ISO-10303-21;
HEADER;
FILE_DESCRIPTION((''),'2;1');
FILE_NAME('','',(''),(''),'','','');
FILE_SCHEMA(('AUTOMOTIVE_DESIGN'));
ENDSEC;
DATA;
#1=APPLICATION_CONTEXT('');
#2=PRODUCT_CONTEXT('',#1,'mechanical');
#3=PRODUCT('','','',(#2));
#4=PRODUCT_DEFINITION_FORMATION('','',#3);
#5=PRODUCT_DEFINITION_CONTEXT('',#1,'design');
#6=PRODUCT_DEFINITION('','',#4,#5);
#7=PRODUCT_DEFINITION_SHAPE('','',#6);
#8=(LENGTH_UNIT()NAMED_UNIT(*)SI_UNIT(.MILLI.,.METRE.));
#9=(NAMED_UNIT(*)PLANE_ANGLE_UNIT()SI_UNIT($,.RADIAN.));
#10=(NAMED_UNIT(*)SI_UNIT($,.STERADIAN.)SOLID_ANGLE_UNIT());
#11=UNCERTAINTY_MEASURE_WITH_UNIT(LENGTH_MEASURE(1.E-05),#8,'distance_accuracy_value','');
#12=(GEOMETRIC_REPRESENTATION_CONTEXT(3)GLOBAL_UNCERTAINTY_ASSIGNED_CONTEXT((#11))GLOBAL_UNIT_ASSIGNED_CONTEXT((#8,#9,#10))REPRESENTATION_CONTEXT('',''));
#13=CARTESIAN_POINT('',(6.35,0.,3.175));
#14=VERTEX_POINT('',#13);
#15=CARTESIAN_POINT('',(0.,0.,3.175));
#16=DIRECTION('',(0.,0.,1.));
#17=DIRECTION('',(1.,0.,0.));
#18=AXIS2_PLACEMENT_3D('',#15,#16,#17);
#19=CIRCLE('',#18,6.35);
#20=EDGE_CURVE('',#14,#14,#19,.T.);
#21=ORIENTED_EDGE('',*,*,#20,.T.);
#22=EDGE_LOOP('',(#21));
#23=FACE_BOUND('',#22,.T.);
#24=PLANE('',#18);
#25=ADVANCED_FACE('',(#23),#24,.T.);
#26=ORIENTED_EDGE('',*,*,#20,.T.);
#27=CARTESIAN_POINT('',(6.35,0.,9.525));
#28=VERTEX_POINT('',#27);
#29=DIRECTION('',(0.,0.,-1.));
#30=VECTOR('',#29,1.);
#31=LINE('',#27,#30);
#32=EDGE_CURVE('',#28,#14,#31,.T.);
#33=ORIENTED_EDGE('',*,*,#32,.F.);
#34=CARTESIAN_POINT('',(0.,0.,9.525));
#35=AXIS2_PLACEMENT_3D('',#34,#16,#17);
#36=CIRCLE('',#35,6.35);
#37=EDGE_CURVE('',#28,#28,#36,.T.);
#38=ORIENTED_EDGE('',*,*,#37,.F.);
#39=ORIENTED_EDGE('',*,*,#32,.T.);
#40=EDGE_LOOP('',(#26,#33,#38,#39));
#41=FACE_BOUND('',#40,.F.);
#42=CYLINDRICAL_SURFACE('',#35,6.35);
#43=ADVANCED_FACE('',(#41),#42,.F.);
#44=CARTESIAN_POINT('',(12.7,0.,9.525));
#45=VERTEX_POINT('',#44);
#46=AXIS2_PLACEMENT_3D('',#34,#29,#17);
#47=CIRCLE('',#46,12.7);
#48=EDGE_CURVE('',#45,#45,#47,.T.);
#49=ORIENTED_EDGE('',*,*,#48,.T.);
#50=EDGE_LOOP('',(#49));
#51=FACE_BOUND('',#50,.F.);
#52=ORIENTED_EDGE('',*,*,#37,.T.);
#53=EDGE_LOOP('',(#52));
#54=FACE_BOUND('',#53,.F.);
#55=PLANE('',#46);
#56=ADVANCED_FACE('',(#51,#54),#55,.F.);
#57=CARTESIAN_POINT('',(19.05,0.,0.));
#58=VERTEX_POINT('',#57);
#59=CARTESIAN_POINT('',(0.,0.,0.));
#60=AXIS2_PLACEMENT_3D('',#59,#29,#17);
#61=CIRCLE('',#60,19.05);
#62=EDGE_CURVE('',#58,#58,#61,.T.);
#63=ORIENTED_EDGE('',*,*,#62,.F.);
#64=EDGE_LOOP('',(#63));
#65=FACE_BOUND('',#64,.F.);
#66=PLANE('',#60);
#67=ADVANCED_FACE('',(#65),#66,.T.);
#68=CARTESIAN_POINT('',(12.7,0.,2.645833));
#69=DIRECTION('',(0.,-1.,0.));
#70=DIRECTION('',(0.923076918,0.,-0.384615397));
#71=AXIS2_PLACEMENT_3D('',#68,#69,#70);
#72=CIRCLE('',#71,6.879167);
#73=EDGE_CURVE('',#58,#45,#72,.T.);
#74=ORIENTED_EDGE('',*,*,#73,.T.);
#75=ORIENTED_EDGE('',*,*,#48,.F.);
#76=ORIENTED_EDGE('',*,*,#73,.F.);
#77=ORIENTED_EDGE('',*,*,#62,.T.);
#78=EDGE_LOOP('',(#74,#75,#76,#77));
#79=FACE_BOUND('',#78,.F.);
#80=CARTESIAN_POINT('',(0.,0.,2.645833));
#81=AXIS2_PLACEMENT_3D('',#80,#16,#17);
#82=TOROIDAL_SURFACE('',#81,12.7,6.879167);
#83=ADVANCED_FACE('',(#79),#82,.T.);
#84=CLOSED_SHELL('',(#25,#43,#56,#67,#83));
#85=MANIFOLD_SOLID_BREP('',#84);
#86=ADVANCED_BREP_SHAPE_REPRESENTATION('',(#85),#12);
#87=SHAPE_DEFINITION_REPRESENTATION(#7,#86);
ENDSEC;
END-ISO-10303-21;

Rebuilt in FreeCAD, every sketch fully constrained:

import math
import FreeCAD as App
import Part
import Sketcher
from FreeCAD import Vector
Q = App.Units.Quantity

doc = App.newDocument("Part")
body = doc.addObject("PartDesign::Body", "Body")

sketch1 = body.newObject("Sketcher::SketchObject", "Sketch")
sketch1.AttachmentSupport = (doc.getObject("XZ_Plane"), [""])
sketch1.MapMode = "FlatFace"
sketch1.addGeometry(Part.LineSegment(Vector(0, 9.525, 0), Vector(0, 0, 0)), False)
sketch1.addGeometry(Part.LineSegment(Vector(0, 0, 0), Vector(19.05, 0, 0)), False)
sketch1.addGeometry(Part.ArcOfCircle(Part.Circle(Vector(12.7, 2.645833, 0), Vector(0, 0, 1), 6.879167), math.radians(-22.619866), math.radians(90.000001)), False)
sketch1.addGeometry(Part.LineSegment(Vector(12.7, 9.525, 0), Vector(0, 9.525, 0)), False)
sketch1.addConstraint(Sketcher.Constraint("Coincident", 0, 2, 1, 1))
sketch1.addConstraint(Sketcher.Constraint("Coincident", 1, 2, 2, 1))
sketch1.addConstraint(Sketcher.Constraint("Tangent", 2, 2, 3, 1))
sketch1.addConstraint(Sketcher.Constraint("Coincident", 3, 2, 0, 1))
sketch1.addConstraint(Sketcher.Constraint("Vertical", 0))
sketch1.addConstraint(Sketcher.Constraint("Horizontal", 1))
sketch1.addConstraint(Sketcher.Constraint("Horizontal", 3))
sketch1.addConstraint(Sketcher.Constraint("Coincident", 0, 2, -1, 1))
sketch1.addConstraint(Sketcher.Constraint("DistanceX", 3, 2, 3, 1, Q("0.5 in")))
sketch1.addConstraint(Sketcher.Constraint("DistanceX", 1, 1, 1, 2, Q("0.75 in")))
sketch1.addConstraint(Sketcher.Constraint("DistanceY", 0, 2, 0, 1, Q("0.375 in")))
revolution = body.newObject("PartDesign::Revolution", "Revolution")
revolution.Profile = sketch1
revolution.ReferenceAxis = (sketch1, ["V_Axis"])
revolution.Angle = 360

sketch2 = body.newObject("Sketcher::SketchObject", "Sketch001")
sketch2.AttachmentSupport = (doc.getObject("XY_Plane"), [""])
sketch2.MapMode = "FlatFace"
sketch2.AttachmentOffset = App.Placement(Vector(0, 0, 0.375 * 25.4), App.Rotation())
sketch2.addGeometry(Part.Circle(Vector(0, 0, 0), Vector(0, 0, 1), 6.35), False)
sketch2.addConstraint(Sketcher.Constraint("Coincident", 0, 3, -1, 1))
sketch2.addConstraint(Sketcher.Constraint("Diameter", 0, Q("0.5 in")))
pocket1 = body.newObject("PartDesign::Pocket", "Pocket")
pocket1.Profile = sketch2
pocket1.Length = Q("0.25 in")

doc.recompute()
